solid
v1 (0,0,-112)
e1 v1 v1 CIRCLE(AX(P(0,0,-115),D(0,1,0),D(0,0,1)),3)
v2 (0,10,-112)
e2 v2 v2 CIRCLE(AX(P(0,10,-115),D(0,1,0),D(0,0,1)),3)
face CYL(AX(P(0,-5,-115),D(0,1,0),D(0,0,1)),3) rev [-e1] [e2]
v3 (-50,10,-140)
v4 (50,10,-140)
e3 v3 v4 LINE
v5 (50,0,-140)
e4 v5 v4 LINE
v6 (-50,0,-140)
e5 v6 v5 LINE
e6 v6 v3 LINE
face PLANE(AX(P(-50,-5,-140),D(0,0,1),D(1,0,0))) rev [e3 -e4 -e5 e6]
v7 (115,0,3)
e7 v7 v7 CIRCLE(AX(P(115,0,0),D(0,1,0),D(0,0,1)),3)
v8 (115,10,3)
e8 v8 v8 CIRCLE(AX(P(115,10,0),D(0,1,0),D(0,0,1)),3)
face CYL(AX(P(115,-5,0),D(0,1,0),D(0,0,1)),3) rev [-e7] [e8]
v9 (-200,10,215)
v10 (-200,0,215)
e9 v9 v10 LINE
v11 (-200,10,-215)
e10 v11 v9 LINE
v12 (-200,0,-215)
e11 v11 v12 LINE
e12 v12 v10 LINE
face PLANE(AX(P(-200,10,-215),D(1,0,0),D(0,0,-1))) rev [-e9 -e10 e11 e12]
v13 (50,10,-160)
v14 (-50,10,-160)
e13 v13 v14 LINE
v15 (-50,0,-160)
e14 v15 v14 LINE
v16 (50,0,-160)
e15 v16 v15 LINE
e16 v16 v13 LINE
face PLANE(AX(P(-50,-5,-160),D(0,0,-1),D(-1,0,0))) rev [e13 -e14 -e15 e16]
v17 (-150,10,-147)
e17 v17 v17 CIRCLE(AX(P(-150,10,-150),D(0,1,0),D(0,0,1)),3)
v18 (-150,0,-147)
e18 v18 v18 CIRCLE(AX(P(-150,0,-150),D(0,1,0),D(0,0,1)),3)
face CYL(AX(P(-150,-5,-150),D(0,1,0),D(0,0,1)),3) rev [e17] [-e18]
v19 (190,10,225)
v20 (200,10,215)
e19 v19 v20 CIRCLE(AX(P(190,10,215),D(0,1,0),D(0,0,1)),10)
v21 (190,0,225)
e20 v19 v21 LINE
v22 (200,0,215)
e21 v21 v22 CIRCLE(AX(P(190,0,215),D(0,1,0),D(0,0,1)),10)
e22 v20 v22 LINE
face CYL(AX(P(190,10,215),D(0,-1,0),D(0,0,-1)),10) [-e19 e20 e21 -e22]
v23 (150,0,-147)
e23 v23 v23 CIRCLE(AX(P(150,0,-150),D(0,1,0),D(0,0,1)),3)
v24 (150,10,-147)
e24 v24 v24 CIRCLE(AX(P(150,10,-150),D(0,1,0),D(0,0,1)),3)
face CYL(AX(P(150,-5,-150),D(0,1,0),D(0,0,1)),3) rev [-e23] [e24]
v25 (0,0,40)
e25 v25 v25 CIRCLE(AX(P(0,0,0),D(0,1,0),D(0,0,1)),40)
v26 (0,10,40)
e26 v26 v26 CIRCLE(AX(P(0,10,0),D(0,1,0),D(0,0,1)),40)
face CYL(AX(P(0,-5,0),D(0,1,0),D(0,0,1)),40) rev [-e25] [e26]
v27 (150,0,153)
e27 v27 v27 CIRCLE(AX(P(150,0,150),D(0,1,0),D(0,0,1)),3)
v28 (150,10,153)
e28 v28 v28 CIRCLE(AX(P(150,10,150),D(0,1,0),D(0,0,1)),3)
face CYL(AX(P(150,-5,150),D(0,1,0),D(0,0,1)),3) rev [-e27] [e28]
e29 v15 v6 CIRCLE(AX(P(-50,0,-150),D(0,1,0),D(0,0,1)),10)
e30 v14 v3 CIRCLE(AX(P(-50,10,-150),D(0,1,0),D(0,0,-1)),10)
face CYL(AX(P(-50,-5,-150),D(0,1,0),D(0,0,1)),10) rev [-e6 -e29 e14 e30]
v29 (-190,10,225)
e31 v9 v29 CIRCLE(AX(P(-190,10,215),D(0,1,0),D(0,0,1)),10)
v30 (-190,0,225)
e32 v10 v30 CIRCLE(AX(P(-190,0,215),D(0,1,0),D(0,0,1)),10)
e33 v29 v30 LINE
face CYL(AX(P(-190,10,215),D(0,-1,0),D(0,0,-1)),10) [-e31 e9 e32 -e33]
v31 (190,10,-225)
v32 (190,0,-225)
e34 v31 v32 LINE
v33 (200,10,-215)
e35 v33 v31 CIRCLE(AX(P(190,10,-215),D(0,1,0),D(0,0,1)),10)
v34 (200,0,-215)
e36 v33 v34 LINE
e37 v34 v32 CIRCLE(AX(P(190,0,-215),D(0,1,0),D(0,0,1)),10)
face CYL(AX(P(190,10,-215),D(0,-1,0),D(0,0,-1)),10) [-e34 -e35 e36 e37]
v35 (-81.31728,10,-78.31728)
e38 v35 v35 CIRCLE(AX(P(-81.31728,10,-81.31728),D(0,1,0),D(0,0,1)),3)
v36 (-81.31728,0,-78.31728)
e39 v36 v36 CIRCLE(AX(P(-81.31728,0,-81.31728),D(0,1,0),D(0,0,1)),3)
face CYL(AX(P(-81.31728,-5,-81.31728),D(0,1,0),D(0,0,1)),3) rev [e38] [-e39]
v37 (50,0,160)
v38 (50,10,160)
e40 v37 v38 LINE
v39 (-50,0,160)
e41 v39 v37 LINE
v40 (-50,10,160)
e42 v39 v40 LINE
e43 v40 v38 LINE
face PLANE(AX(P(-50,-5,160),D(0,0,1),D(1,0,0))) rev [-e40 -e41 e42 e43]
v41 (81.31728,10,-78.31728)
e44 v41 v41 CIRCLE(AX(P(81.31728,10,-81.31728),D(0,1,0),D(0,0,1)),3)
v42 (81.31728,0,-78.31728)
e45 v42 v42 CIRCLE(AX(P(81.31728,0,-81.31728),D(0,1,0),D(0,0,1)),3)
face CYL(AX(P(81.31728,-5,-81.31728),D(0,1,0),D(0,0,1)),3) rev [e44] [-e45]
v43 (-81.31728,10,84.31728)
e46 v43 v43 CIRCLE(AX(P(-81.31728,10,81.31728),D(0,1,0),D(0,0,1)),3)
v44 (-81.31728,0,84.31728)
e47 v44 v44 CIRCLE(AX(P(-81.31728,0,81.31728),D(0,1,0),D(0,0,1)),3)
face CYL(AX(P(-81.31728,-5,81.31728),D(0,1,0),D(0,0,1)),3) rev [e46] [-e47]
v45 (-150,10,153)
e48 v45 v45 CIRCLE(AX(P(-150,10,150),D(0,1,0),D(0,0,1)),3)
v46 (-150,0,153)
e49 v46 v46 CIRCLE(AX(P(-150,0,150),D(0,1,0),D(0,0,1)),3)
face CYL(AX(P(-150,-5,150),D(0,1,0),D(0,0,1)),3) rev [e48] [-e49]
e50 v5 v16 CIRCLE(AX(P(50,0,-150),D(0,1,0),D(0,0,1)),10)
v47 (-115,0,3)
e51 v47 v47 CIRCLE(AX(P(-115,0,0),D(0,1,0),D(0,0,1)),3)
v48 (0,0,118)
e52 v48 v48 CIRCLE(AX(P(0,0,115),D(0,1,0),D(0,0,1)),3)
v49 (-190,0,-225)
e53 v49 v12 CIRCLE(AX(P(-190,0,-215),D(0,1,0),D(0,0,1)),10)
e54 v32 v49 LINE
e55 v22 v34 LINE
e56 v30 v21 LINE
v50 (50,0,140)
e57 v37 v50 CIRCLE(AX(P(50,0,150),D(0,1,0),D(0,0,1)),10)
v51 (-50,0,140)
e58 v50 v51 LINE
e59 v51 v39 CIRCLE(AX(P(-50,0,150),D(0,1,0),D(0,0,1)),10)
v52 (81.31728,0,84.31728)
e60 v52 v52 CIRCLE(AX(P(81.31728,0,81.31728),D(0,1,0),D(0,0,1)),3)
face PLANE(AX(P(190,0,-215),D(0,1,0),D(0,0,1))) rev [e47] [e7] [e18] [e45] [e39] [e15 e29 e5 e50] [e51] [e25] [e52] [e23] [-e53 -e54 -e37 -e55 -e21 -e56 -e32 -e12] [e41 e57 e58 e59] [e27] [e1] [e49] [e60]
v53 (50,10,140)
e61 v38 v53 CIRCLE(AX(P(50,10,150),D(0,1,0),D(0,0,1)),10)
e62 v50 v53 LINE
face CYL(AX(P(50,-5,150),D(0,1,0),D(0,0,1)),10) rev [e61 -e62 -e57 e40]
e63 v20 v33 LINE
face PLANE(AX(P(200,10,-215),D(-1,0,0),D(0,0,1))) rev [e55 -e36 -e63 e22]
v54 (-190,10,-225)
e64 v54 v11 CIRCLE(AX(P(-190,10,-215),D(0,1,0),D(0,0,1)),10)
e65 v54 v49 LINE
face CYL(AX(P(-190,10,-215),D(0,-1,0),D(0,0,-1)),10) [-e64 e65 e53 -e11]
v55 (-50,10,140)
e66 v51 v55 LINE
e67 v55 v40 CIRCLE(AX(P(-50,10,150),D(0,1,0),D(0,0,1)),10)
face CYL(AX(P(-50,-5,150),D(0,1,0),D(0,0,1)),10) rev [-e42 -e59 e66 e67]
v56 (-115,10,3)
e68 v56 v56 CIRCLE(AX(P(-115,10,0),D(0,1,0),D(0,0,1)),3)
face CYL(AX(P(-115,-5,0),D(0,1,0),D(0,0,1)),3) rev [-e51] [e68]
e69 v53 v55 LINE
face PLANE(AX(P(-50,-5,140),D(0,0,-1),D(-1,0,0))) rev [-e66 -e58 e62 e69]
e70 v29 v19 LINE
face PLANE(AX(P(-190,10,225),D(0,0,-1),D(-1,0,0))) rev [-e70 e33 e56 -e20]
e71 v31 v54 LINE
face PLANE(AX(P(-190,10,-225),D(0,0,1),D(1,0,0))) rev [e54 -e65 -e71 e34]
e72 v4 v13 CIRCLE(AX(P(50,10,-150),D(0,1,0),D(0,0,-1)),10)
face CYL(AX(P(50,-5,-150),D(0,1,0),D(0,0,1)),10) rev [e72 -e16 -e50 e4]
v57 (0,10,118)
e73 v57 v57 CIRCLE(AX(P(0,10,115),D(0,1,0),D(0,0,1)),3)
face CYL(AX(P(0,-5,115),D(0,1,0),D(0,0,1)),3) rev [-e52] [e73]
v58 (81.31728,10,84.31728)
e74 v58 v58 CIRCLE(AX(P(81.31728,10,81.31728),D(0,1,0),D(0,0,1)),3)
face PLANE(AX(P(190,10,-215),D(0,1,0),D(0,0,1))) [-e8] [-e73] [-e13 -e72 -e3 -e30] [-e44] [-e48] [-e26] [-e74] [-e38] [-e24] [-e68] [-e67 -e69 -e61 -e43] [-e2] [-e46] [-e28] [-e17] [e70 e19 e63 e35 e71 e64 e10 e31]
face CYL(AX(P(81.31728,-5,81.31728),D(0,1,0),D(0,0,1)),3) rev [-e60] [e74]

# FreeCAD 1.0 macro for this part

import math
import FreeCAD as App
import Part
import Sketcher
from FreeCAD import Vector

doc = App.newDocument("Part")
body = doc.addObject("PartDesign::Body", "Body")

# Sketch on XZ plane
sketch1 = body.newObject("Sketcher::SketchObject", "Sketch")
sketch1.AttachmentSupport = (doc.getObject("XZ_Plane"), [""])
sketch1.MapMode = "FlatFace"
sketch1.addGeometry(Part.LineSegment(Vector(-200, -215, 0), Vector(-200, 215, 0)), False)
sketch1.addGeometry(Part.ArcOfCircle(Part.Circle(Vector(-190, 215, 0), Vector(0, 0, 1), 10), math.radians(90), math.radians(180)), False)
sketch1.addGeometry(Part.LineSegment(Vector(-190, 225, 0), Vector(190, 225, 0)), False)
sketch1.addGeometry(Part.ArcOfCircle(Part.Circle(Vector(190, 215, 0), Vector(0, 0, 1), 10), math.radians(0), math.radians(90)), False)
sketch1.addGeometry(Part.LineSegment(Vector(200, 215, 0), Vector(200, -215, 0)), False)
sketch1.addGeometry(Part.ArcOfCircle(Part.Circle(Vector(190, -215, 0), Vector(0, 0, 1), 10), math.radians(-90), math.radians(0)), False)
sketch1.addGeometry(Part.LineSegment(Vector(190, -225, 0), Vector(-190, -225, 0)), False)
sketch1.addGeometry(Part.ArcOfCircle(Part.Circle(Vector(-190, -215, 0), Vector(0, 0, 1), 10), math.radians(180), math.radians(270)), False)
sketch1.addConstraint(Sketcher.Constraint("Tangent", 0, 2, 1, 2))
sketch1.addConstraint(Sketcher.Constraint("Tangent", 1, 1, 2, 1))
sketch1.addConstraint(Sketcher.Constraint("Tangent", 2, 2, 3, 2))
sketch1.addConstraint(Sketcher.Constraint("Tangent", 3, 1, 4, 1))
sketch1.addConstraint(Sketcher.Constraint("Tangent", 4, 2, 5, 2))
sketch1.addConstraint(Sketcher.Constraint("Tangent", 5, 1, 6, 1))
sketch1.addConstraint(Sketcher.Constraint("Tangent", 6, 2, 7, 2))
sketch1.addConstraint(Sketcher.Constraint("Tangent", 7, 1, 0, 1))
sketch1.addConstraint(Sketcher.Constraint("Vertical", 0))
sketch1.addConstraint(Sketcher.Constraint("Horizontal", 2))
sketch1.addConstraint(Sketcher.Constraint("Vertical", 4))
sketch1.addConstraint(Sketcher.Constraint("Horizontal", 6))
sketch1.addConstraint(Sketcher.Constraint("Equal", 1, 3))
sketch1.addConstraint(Sketcher.Constraint("Equal", 3, 5))
sketch1.addConstraint(Sketcher.Constraint("Equal", 5, 7))
sketch1.addConstraint(Sketcher.Constraint("Symmetric", 1, 3, 5, 3, -1, 1))
sketch1.addConstraint(Sketcher.Constraint("Radius", 1, 10.0))
sketch1.addConstraint(Sketcher.Constraint("DistanceX", 2, 1, 2, 2, 380.0))
sketch1.addConstraint(Sketcher.Constraint("DistanceY", 0, 1, 0, 2, 430.0))
pad1 = body.newObject("PartDesign::Pad", "Pad")
pad1.Profile = sketch1
pad1.Length = 10
pad1.Reversed = True

# Sketch on XZ plane
sketch2 = body.newObject("Sketcher::SketchObject", "Sketch001")
sketch2.AttachmentSupport = (doc.getObject("XZ_Plane"), [""])
sketch2.MapMode = "FlatFace"
sketch2.AttachmentOffset = App.Placement(Vector(0, 0, -10), App.Rotation())
sketch2.addGeometry(Part.Circle(Vector(0, 0, 0), Vector(0, 0, 1), 40), False)
sketch2.addGeometry(Part.Circle(Vector(0, -115, 0), Vector(0, 0, 1), 3), False)
sketch2.addGeometry(Part.Circle(Vector(81.3, -81.3, 0), Vector(0, 0, 1), 3), False)
sketch2.addGeometry(Part.Circle(Vector(115, 0, 0), Vector(0, 0, 1), 3), False)
sketch2.addGeometry(Part.Circle(Vector(81.3, 81.3, 0), Vector(0, 0, 1), 3), False)
sketch2.addGeometry(Part.Circle(Vector(0, 115, 0), Vector(0, 0, 1), 3), False)
sketch2.addGeometry(Part.Circle(Vector(-81.3, 81.3, 0), Vector(0, 0, 1), 3), False)
sketch2.addGeometry(Part.Circle(Vector(-115, 0, 0), Vector(0, 0, 1), 3), False)
sketch2.addGeometry(Part.Circle(Vector(-81.3, -81.3, 0), Vector(0, 0, 1), 3), False)
sketch2.addGeometry(Part.Circle(Vector(-150, -150, 0), Vector(0, 0, 1), 3), False)
sketch2.addGeometry(Part.Circle(Vector(150, -150, 0), Vector(0, 0, 1), 3), False)
sketch2.addGeometry(Part.Circle(Vector(-150, 150, 0), Vector(0, 0, 1), 3), False)
sketch2.addGeometry(Part.Circle(Vector(150, 150, 0), Vector(0, 0, 1), 3), False)
sketch2.addGeometry(Part.LineSegment(Vector(50, 140, 0), Vector(-50, 140, 0)), False)
sketch2.addGeometry(Part.ArcOfCircle(Part.Circle(Vector(-50, 150, 0), Vector(0, 0, 1), 10), math.radians(90), math.radians(270)), False)
sketch2.addGeometry(Part.LineSegment(Vector(-50, 160, 0), Vector(50, 160, 0)), False)
sketch2.addGeometry(Part.ArcOfCircle(Part.Circle(Vector(50, 150, 0), Vector(0, 0, 1), 10), math.radians(-90), math.radians(90)), False)
sketch2.addGeometry(Part.LineSegment(Vector(-50, -140, 0), Vector(50, -140, 0)), False)
sketch2.addGeometry(Part.ArcOfCircle(Part.Circle(Vector(50, -150, 0), Vector(0, 0, 1), 10), math.radians(-90), math.radians(90)), False)
sketch2.addGeometry(Part.LineSegment(Vector(50, -160, 0), Vector(-50, -160, 0)), False)
sketch2.addGeometry(Part.ArcOfCircle(Part.Circle(Vector(-50, -150, 0), Vector(0, 0, 1), 10), math.radians(90), math.radians(270)), False)
sketch2.addConstraint(Sketcher.Constraint("Tangent", 13, 2, 14, 2))
sketch2.addConstraint(Sketcher.Constraint("Tangent", 14, 1, 15, 1))
sketch2.addConstraint(Sketcher.Constraint("Tangent", 15, 2, 16, 2))
sketch2.addConstraint(Sketcher.Constraint("Tangent", 16, 1, 13, 1))
sketch2.addConstraint(Sketcher.Constraint("Tangent", 17, 2, 18, 2))
sketch2.addConstraint(Sketcher.Constraint("Tangent", 18, 1, 19, 1))
sketch2.addConstraint(Sketcher.Constraint("Tangent", 19, 2, 20, 2))
sketch2.addConstraint(Sketcher.Constraint("Tangent", 20, 1, 17, 1))
sketch2.addConstraint(Sketcher.Constraint("Horizontal", 13))
sketch2.addConstraint(Sketcher.Constraint("Horizontal", 15))
sketch2.addConstraint(Sketcher.Constraint("Horizontal", 17))
sketch2.addConstraint(Sketcher.Constraint("Horizontal", 19))
sketch2.addConstraint(Sketcher.Constraint("Coincident", 0, 3, -1, 1))
sketch2.addConstraint(Sketcher.Constraint("Equal", 1, 2))
sketch2.addConstraint(Sketcher.Constraint("Equal", 2, 3))
sketch2.addConstraint(Sketcher.Constraint("Equal", 3, 4))
sketch2.addConstraint(Sketcher.Constraint("Equal", 4, 5))
sketch2.addConstraint(Sketcher.Constraint("Equal", 5, 6))
sketch2.addConstraint(Sketcher.Constraint("Equal", 6, 7))
sketch2.addConstraint(Sketcher.Constraint("Equal", 7, 8))
sketch2.addConstraint(Sketcher.Constraint("Equal", 8, 9))
sketch2.addConstraint(Sketcher.Constraint("Equal", 9, 10))
sketch2.addConstraint(Sketcher.Constraint("Equal", 10, 11))
sketch2.addConstraint(Sketcher.Constraint("Equal", 11, 12))
sketch2.addConstraint(Sketcher.Constraint("Equal", 16, 18))
sketch2.addConstraint(Sketcher.Constraint("Symmetric", 1, 3, 5, 3, -1, 1))
sketch2.addConstraint(Sketcher.Constraint("Symmetric", 2, 3, 6, 3, -1, 1))
sketch2.addConstraint(Sketcher.Constraint("Symmetric", 3, 3, 7, 3, -1, 1))
sketch2.addConstraint(Sketcher.Constraint("Symmetric", 4, 3, 8, 3, -1, 1))
sketch2.addConstraint(Sketcher.Constraint("Symmetric", 10, 3, 11, 3, -1, 1))
sketch2.addConstraint(Sketcher.Constraint("Symmetric", 9, 3, 12, 3, -1, 1))
sketch2.addConstraint(Sketcher.Constraint("Symmetric", 14, 3, 18, 3, -1, 1))
sketch2.addConstraint(Sketcher.Constraint("Symmetric", 4, 3, 6, 3, -2))
sketch2.addConstraint(Sketcher.Constraint("Symmetric", 9, 3, 10, 3, -2))
sketch2.addConstraint(Sketcher.Constraint("PointOnObject", 1, 3, -2))
sketch2.addConstraint(Sketcher.Constraint("PointOnObject", 3, 3, -1))
sketch2.addConstraint(Sketcher.Constraint("Horizontal", 12, 3, 14, 3))
sketch2.addConstraint(Sketcher.Constraint("Vertical", 16, 3, 18, 3))
sketch2.addConstraint(Sketcher.Constraint("Vertical", 14, 3, 20, 3))
sketch2.addConstraint(Sketcher.Constraint("Diameter", 0, 80.0))
sketch2.addConstraint(Sketcher.Constraint("Diameter", 1, 6.0))
sketch2.addConstraint(Sketcher.Constraint("Radius", 14, 10.0))
sketch2.addConstraint(Sketcher.Constraint("DistanceX", 13, 2, 13, 1, 100.0))
sketch2.addConstraint(Sketcher.Constraint("DistanceY", 1, 3, -1, 1, 115.0))
sketch2.addConstraint(Sketcher.Constraint("DistanceX", -1, 1, 3, 3, 115.0))
sketch2.addConstraint(Sketcher.Constraint("DistanceX", 9, 3, -1, 1, 150.0))
sketch2.addConstraint(Sketcher.Constraint("DistanceY", 9, 3, -1, 1, 150.0))
sketch2.addConstraint(Sketcher.Constraint("DistanceX", -1, 1, 2, 3, 81.31728))
sketch2.addConstraint(Sketcher.Constraint("DistanceY", 2, 3, -1, 1, 81.31728))
pocket1 = body.newObject("PartDesign::Pocket", "Pocket")
pocket1.Profile = sketch2
pocket1.Length = 15
pocket1.Reversed = True

doc.recompute()
